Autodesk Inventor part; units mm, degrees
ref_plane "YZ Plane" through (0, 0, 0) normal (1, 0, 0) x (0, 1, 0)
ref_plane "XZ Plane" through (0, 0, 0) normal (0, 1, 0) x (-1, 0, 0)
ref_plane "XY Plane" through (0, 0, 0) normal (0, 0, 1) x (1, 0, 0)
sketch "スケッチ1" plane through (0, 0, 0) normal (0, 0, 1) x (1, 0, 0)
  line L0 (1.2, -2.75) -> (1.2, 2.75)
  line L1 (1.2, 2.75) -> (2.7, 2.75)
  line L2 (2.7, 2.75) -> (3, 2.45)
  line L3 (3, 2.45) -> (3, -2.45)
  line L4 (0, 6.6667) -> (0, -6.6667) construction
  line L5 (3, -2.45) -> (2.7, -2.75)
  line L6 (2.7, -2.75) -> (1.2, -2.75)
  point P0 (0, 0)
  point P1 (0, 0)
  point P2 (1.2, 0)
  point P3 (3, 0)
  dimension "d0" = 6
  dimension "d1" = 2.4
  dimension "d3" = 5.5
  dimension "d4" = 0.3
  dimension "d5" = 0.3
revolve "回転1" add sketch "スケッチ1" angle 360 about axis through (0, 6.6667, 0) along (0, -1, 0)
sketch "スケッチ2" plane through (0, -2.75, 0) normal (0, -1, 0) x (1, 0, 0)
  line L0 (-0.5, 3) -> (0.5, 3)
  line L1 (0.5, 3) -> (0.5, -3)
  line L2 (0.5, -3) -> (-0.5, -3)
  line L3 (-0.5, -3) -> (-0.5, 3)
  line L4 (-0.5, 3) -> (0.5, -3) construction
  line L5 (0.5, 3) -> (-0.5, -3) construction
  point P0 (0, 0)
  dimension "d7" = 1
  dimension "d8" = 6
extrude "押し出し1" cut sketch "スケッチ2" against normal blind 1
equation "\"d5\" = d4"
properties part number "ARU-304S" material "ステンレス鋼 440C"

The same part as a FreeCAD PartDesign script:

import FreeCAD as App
import Part
import Sketcher
from FreeCAD import Vector
Q = App.Units.Quantity

doc = App.newDocument("Part")
body = doc.addObject("PartDesign::Body", "Body")

sketch1 = doc.addObject("Sketcher::SketchObject", "Sketch")
body.addObject(sketch1)
sketch1.AttachmentSupport = (doc.XY_Plane, [""])
sketch1.MapMode = "FlatFace"
sketch1.addGeometry([
    Part.LineSegment(Vector(1.2, 2.75, 0), Vector(1.2, -2.75, 0)),
    Part.LineSegment(Vector(1.2, -2.75, 0), Vector(2.7, -2.75, 0)),
    Part.LineSegment(Vector(2.7, -2.75, 0), Vector(3, -2.45, 0)),
    Part.LineSegment(Vector(3, -2.45, 0), Vector(3, 2.45, 0)),
    Part.LineSegment(Vector(3, 2.45, 0), Vector(2.7, 2.75, 0)),
    Part.LineSegment(Vector(2.7, 2.75, 0), Vector(1.2, 2.75, 0)),
], False)
sketch1.addConstraint([
    Sketcher.Constraint("Coincident", 0, 2, 1, 1),
    Sketcher.Constraint("Coincident", 1, 2, 2, 1),
    Sketcher.Constraint("Coincident", 2, 2, 3, 1),
    Sketcher.Constraint("Coincident", 3, 2, 4, 1),
    Sketcher.Constraint("Coincident", 4, 2, 5, 1),
    Sketcher.Constraint("Coincident", 5, 2, 0, 1),
    Sketcher.Constraint("Vertical", 0),
    Sketcher.Constraint("Horizontal", 1),
    Sketcher.Constraint("Vertical", 3),
    Sketcher.Constraint("Horizontal", 5),
    Sketcher.Constraint("Symmetric", 1, 2, 4, 2, -1),
    Sketcher.Constraint("Perpendicular", 2, 4),
    Sketcher.Constraint("Equal", 2, 4),
    Sketcher.Constraint("DistanceY", 0, 2, 0, 1, Q("5.5 mm")),
    Sketcher.Constraint("DistanceX", 1, 2, 2, 2, Q("0.3 mm")),
    Sketcher.Constraint("DistanceX", 1, 1, 1, 2, Q("1.5 mm")),
    Sketcher.Constraint("DistanceX", -1, 1, 2, 2, Q("3 mm")),
])
revolution = doc.addObject("PartDesign::Revolution", "Revolution")
body.addObject(revolution)
revolution.Profile = sketch1
revolution.ReferenceAxis = (sketch1, ["V_Axis"])
revolution.Angle = 360

sketch2 = doc.addObject("Sketcher::SketchObject", "Sketch001")
body.addObject(sketch2)
sketch2.AttachmentSupport = (doc.XZ_Plane, [""])
sketch2.MapMode = "FlatFace"
sketch2.AttachmentOffset = App.Placement(Vector(0, 0, 2.75), App.Rotation())
sketch2.addGeometry([
    Part.LineSegment(Vector(0.5, 3, 0), Vector(-0.5, 3, 0)),
    Part.LineSegment(Vector(-0.5, 3, 0), Vector(-0.5, -3, 0)),
    Part.LineSegment(Vector(-0.5, -3, 0), Vector(0.5, -3, 0)),
    Part.LineSegment(Vector(0.5, -3, 0), Vector(0.5, 3, 0)),
], False)
sketch2.addConstraint([
    Sketcher.Constraint("Coincident", 0, 2, 1, 1),
    Sketcher.Constraint("Coincident", 1, 2, 2, 1),
    Sketcher.Constraint("Coincident", 2, 2, 3, 1),
    Sketcher.Constraint("Coincident", 3, 2, 0, 1),
    Sketcher.Constraint("Horizontal", 0),
    Sketcher.Constraint("Vertical", 1),
    Sketcher.Constraint("Horizontal", 2),
    Sketcher.Constraint("Vertical", 3),
    Sketcher.Constraint("Symmetric", 0, 2, 2, 2, -1, 1),
    Sketcher.Constraint("DistanceX", 0, 2, 0, 1, Q("1 mm")),
    Sketcher.Constraint("DistanceY", 1, 2, 1, 1, Q("6 mm")),
])
pocket1 = doc.addObject("PartDesign::Pocket", "Pocket")
body.addObject(pocket1)
pocket1.Profile = sketch2
pocket1.Length = 1

doc.recompute()
